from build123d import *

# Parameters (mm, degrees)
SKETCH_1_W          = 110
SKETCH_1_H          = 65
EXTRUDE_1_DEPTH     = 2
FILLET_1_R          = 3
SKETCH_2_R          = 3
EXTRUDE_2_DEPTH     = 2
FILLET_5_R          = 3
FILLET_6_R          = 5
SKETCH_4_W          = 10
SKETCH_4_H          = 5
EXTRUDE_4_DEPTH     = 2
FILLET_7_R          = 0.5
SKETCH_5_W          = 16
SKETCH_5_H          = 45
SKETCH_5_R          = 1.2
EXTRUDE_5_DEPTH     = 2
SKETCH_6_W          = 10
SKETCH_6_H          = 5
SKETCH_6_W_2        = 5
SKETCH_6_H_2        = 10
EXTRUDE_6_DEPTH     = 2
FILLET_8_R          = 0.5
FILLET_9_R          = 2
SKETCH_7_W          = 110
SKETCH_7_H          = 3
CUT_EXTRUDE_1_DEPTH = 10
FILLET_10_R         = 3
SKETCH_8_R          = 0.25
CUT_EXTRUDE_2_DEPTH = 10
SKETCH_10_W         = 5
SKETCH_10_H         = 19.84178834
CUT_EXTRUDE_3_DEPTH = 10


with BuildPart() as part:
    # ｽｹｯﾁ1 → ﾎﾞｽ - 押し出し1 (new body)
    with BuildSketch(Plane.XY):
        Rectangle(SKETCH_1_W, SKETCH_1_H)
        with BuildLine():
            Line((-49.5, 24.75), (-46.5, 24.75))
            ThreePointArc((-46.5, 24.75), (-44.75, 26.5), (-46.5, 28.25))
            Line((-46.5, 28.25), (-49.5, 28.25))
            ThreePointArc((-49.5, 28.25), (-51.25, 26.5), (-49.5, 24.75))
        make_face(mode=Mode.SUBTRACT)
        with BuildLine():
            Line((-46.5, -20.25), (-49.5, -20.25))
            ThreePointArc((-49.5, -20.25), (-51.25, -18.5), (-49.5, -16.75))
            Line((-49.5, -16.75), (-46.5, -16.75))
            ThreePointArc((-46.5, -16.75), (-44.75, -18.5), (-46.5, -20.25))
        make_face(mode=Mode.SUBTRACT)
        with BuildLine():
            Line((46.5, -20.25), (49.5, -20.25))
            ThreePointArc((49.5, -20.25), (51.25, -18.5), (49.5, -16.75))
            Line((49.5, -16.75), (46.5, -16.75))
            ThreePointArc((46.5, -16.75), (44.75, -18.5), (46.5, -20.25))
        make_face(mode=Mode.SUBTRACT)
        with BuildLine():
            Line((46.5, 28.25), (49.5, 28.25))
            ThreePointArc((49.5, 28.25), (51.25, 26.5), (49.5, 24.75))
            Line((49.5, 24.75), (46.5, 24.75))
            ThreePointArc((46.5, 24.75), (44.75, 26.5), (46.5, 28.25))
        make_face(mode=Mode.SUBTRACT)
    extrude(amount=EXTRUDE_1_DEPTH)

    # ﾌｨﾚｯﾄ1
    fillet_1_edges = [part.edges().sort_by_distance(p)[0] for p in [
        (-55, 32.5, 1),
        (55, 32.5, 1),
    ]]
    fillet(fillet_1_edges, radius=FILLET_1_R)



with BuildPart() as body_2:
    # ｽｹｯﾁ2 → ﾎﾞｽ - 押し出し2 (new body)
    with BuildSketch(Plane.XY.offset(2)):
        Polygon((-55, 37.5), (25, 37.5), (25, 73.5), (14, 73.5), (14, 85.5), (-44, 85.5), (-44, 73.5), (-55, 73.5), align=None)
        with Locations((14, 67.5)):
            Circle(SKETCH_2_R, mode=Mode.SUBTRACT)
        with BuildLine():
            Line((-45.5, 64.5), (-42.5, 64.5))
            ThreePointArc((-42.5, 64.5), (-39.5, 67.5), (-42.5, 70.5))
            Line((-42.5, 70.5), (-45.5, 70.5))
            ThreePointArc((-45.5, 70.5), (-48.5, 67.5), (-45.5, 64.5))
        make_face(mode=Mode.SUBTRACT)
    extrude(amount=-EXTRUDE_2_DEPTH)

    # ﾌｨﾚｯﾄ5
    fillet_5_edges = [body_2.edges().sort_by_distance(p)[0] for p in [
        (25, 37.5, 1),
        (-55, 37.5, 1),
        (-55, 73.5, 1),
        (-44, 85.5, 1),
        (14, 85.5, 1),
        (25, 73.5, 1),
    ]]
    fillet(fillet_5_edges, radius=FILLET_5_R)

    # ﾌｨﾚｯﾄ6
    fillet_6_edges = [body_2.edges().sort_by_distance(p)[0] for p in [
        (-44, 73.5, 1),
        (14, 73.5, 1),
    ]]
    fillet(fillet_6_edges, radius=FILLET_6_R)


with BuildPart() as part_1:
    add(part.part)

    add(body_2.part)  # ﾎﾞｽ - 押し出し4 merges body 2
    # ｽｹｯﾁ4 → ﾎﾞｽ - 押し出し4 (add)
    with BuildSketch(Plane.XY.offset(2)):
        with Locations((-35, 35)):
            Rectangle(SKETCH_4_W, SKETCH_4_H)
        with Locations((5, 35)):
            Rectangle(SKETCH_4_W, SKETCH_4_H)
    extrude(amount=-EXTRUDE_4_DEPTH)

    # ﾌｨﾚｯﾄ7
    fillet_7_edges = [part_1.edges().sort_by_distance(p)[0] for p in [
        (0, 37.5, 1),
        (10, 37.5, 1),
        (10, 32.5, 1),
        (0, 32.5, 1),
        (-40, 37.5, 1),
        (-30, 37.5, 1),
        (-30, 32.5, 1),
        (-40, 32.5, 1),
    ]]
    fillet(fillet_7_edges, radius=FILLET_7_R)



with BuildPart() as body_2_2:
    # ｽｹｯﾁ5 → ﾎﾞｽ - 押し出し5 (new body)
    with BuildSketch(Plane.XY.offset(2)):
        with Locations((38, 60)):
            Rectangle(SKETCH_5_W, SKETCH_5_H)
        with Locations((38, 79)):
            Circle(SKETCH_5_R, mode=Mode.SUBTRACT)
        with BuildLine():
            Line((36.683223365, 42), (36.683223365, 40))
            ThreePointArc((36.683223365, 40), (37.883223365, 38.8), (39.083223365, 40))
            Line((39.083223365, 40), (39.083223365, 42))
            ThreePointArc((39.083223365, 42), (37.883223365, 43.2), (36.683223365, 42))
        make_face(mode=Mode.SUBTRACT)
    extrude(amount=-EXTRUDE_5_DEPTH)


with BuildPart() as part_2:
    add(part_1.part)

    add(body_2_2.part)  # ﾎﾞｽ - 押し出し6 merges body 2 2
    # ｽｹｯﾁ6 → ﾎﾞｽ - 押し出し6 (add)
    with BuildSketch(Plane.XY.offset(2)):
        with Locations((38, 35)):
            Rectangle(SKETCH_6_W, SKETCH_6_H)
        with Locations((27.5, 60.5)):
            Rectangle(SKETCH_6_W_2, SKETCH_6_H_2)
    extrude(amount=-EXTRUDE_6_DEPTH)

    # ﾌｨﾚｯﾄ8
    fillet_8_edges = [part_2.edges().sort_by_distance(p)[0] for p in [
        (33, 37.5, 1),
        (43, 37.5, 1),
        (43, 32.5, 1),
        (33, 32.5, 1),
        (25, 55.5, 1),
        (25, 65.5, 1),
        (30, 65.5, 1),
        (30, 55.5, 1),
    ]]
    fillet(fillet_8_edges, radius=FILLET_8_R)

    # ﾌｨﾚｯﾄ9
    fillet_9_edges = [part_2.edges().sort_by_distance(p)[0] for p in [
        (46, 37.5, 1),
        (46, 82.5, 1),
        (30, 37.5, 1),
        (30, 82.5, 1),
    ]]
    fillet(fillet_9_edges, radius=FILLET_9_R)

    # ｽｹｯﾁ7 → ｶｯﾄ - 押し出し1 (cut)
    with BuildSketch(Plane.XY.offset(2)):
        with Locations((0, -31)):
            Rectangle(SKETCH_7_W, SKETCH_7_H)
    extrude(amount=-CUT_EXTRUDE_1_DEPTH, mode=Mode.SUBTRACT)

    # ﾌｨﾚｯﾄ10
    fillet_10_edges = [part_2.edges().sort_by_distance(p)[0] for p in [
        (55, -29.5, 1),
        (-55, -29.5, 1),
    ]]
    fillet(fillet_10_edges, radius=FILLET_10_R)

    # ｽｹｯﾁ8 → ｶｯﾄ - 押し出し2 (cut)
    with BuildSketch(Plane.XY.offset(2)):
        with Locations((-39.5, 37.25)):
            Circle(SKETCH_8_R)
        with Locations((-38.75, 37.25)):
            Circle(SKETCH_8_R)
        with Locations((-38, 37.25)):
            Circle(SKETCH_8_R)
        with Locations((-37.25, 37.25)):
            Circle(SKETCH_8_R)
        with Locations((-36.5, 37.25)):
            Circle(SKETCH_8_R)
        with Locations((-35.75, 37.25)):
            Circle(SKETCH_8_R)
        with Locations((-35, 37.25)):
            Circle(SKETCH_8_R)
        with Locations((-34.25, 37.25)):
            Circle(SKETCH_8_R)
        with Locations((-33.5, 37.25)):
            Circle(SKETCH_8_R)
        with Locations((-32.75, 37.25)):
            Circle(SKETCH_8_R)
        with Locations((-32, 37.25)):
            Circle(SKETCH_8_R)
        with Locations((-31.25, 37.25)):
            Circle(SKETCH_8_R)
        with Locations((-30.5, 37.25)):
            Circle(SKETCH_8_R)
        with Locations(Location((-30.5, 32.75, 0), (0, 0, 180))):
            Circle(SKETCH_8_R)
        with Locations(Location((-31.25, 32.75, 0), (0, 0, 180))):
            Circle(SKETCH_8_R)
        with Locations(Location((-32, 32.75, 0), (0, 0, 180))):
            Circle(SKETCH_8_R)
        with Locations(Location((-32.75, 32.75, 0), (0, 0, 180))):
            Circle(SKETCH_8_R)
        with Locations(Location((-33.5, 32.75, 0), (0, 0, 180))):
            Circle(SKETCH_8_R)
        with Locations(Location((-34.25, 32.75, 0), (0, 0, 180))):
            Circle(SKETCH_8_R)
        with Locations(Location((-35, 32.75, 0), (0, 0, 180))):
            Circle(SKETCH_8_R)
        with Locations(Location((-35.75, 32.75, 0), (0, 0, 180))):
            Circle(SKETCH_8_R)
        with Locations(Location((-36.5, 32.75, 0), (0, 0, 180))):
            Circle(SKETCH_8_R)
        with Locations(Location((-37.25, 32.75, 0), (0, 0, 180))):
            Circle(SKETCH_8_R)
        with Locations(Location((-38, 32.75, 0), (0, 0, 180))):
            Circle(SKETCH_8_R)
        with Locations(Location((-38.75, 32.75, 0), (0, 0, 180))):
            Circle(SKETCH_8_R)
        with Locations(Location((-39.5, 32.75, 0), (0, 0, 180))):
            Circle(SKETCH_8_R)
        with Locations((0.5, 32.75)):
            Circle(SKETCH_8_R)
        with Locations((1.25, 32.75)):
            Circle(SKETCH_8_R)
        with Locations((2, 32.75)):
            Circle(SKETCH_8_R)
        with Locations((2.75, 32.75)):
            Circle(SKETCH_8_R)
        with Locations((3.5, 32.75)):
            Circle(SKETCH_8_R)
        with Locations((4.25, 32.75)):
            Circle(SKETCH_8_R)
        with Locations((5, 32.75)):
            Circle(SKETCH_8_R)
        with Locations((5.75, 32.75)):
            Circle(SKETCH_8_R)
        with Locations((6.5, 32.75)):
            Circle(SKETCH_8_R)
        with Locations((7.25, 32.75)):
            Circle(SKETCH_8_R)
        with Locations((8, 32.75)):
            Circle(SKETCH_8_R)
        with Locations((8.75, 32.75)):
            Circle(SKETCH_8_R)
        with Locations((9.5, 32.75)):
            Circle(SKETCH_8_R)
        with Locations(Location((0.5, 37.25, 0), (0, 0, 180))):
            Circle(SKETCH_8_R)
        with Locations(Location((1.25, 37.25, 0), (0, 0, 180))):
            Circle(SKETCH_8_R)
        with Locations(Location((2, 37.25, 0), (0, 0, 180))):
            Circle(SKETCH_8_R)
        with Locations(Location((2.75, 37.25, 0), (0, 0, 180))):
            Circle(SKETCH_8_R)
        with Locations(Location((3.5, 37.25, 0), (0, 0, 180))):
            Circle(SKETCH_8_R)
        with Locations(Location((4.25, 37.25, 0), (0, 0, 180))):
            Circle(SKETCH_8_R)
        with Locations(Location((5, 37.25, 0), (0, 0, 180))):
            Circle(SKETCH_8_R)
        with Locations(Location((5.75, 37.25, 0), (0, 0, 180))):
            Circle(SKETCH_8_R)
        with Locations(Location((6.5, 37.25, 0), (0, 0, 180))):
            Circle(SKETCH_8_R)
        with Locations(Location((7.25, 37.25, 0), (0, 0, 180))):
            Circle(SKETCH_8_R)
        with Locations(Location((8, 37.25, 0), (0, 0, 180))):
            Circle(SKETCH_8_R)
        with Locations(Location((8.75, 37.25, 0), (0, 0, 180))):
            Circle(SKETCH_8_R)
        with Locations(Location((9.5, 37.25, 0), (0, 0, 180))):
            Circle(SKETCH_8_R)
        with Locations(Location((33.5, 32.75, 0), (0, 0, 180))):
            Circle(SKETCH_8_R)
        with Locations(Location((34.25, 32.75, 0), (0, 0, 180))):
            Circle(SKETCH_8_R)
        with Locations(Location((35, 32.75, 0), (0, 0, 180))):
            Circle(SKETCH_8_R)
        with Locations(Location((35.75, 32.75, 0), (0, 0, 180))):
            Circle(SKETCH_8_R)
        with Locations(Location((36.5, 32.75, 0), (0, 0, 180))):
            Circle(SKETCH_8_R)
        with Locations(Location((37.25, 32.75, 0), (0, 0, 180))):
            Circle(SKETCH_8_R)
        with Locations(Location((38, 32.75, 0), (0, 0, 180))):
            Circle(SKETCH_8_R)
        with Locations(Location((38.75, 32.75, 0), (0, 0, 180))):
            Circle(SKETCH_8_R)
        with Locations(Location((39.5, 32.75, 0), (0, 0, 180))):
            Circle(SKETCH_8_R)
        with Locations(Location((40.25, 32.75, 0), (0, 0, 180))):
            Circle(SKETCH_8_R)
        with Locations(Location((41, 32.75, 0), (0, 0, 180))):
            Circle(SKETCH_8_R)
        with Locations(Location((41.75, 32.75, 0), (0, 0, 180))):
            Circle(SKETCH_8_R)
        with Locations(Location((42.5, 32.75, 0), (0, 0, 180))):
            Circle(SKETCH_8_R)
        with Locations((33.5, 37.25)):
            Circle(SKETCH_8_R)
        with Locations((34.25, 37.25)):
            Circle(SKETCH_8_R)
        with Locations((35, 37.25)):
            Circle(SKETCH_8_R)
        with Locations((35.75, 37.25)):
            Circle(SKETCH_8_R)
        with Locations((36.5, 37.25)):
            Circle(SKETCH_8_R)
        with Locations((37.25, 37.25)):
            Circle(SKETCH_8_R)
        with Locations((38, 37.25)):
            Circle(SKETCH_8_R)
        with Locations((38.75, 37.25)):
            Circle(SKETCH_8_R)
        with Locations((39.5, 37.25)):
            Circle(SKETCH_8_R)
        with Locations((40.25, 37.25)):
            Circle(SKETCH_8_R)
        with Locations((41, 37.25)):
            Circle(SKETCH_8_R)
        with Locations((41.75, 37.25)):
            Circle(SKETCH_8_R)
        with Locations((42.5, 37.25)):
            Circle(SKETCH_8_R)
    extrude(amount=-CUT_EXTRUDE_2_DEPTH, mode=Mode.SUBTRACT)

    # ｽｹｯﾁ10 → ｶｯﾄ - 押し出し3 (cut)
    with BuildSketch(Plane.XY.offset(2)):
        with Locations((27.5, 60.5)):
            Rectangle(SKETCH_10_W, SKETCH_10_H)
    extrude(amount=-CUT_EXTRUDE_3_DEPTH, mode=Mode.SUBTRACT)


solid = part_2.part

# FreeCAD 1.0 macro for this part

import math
import FreeCAD as App
import Part
import Sketcher
Q = App.Units.Quantity


def edges_at(feature, points):
    """Names of the edges that pass closest to the given points."""
    edges = feature.Shape.Edges
    near = lambda p: min(range(len(edges)), key=lambda i: edges[i].distToShape(Part.Vertex(*p))[0])
    return sorted({f"Edge{near(p) + 1}" for p in points})


def add_polygon(sketch, points):
    """Adds a closed chain of lines whose ends are joined by coincident constraints."""
    first, n = sketch.GeometryCount, len(points)
    for a, b in zip(points, points[1:] + points[:1]):
        sketch.addGeometry(Part.LineSegment(App.Vector(*a, 0), App.Vector(*b, 0)), False)
    for i in range(n):
        sketch.addConstraint(Sketcher.Constraint("Coincident", first + i, 2, first + (i + 1) % n, 1))

doc = App.newDocument("Part")
params = doc.addObject("Spreadsheet::Sheet", "Params")
for row, (alias, value) in enumerate([
    ("sketch1_width", "110 mm"),
    ("sketch1_width2", "3 mm"),
    ("sketch1_height", "65 mm"),
    ("sketch1_radius", "1.75 mm"),
    ("pad1_length", "2 mm"),
    ("fillet_radius", "3 mm"),
    ("sketch2_diameter", "6 mm"),
    ("sketch2_width", "80 mm"),
    ("sketch2_width2", "11 mm"),
    ("sketch2_width3", "3 mm"),
    ("sketch2_height", "36 mm"),
    ("pad2_length", "2 mm"),
    ("fillet2_radius", "3 mm"),
    ("fillet3_radius", "5 mm"),
    ("sketch3_width", "10 mm"),
    ("sketch3_height", "5 mm"),
    ("pad3_length", "2 mm"),
    ("fillet4_radius", "0.5 mm"),
    ("sketch4_diameter", "2.4 mm"),
    ("sketch4_width", "16 mm"),
    ("sketch4_height", "45 mm"),
    ("sketch4_height2", "2 mm"),
    ("pad4_length", "2 mm"),
    ("sketch5_width", "10 mm"),
    ("sketch5_width2", "5 mm"),
    ("pad5_length", "2 mm"),
    ("fillet5_radius", "0.5 mm"),
    ("fillet6_radius", "2 mm"),
    ("sketch6_width", "110 mm"),
    ("sketch6_height", "3 mm"),
    ("pocket1_length", "10 mm"),
    ("fillet7_radius", "3 mm"),
    ("sketch7_diameter", "0.5 mm"),
    ("pocket2_length", "10 mm"),
    ("sketch8_width", "5 mm"),
    ("pocket3_length", "10 mm"),
], start=1):
    params.set(f"A{row}", alias)
    params.set(f"B{row}", "=" + value)
    params.setAlias(f"B{row}", alias)

body = doc.addObject("PartDesign::Body", "Body")

# Sketch on XY plane
sketch1 = body.newObject("Sketcher::SketchObject", "Sketch")
sketch1.AttachmentSupport = (doc.getObject("XY_Plane"), [""])
sketch1.MapMode = "FlatFace"
add_polygon(sketch1, [(-55, 32.5), (-55, -32.5), (55, -32.5), (55, 32.5)])  # lines 0-3
sketch1.addGeometry(Part.ArcOfCircle(Part.Circle(App.Vector(-46.5, -18.5, 0), App.Vector(0, 0, 1), 1.75), math.radians(-90), math.radians(90)), False)  # 4
sketch1.addGeometry(Part.LineSegment(App.Vector(-46.5, -20.25, 0), App.Vector(-49.5, -20.25, 0)), False)  # 5
sketch1.addGeometry(Part.ArcOfCircle(Part.Circle(App.Vector(-49.5, -18.5, 0), App.Vector(0, 0, 1), 1.75), math.radians(90), math.radians(270)), False)  # 6
sketch1.addGeometry(Part.LineSegment(App.Vector(-49.5, -16.75, 0), App.Vector(-46.5, -16.75, 0)), False)  # 7
sketch1.addGeometry(Part.LineSegment(App.Vector(49.5, -20.25, 0), App.Vector(46.5, -20.25, 0)), False)  # 8
sketch1.addGeometry(Part.ArcOfCircle(Part.Circle(App.Vector(46.5, -18.5, 0), App.Vector(0, 0, 1), 1.75), math.radians(90), math.radians(270)), False)  # 9
sketch1.addGeometry(Part.LineSegment(App.Vector(46.5, -16.75, 0), App.Vector(49.5, -16.75, 0)), False)  # 10
sketch1.addGeometry(Part.ArcOfCircle(Part.Circle(App.Vector(49.5, -18.5, 0), App.Vector(0, 0, 1), 1.75), math.radians(-90), math.radians(90)), False)  # 11
sketch1.addGeometry(Part.LineSegment(App.Vector(-46.5, 24.75, 0), App.Vector(-49.5, 24.75, 0)), False)  # 12
sketch1.addGeometry(Part.ArcOfCircle(Part.Circle(App.Vector(-49.5, 26.5, 0), App.Vector(0, 0, 1), 1.75), math.radians(90), math.radians(270)), False)  # 13
sketch1.addGeometry(Part.LineSegment(App.Vector(-49.5, 28.25, 0), App.Vector(-46.5, 28.25, 0)), False)  # 14
sketch1.addGeometry(Part.ArcOfCircle(Part.Circle(App.Vector(-46.5, 26.5, 0), App.Vector(0, 0, 1), 1.75), math.radians(-90), math.radians(90)), False)  # 15
sketch1.addGeometry(Part.ArcOfCircle(Part.Circle(App.Vector(46.5, 26.5, 0), App.Vector(0, 0, 1), 1.75), math.radians(90), math.radians(270)), False)  # 16
sketch1.addGeometry(Part.LineSegment(App.Vector(46.5, 28.25, 0), App.Vector(49.5, 28.25, 0)), False)  # 17
sketch1.addGeometry(Part.ArcOfCircle(Part.Circle(App.Vector(49.5, 26.5, 0), App.Vector(0, 0, 1), 1.75), math.radians(-90), math.radians(90)), False)  # 18
sketch1.addGeometry(Part.LineSegment(App.Vector(49.5, 24.75, 0), App.Vector(46.5, 24.75, 0)), False)  # 19
sketch1.addConstraint([
    Sketcher.Constraint("Tangent", 4, 1, 5, 1),
    Sketcher.Constraint("Tangent", 5, 2, 6, 2),
    Sketcher.Constraint("Tangent", 6, 1, 7, 1),
    Sketcher.Constraint("Tangent", 7, 2, 4, 2),
    Sketcher.Constraint("Tangent", 8, 2, 9, 2),
    Sketcher.Constraint("Tangent", 9, 1, 10, 1),
    Sketcher.Constraint("Tangent", 10, 2, 11, 2),
    Sketcher.Constraint("Tangent", 11, 1, 8, 1),
    Sketcher.Constraint("Tangent", 12, 2, 13, 2),
    Sketcher.Constraint("Tangent", 13, 1, 14, 1),
    Sketcher.Constraint("Tangent", 14, 2, 15, 2),
    Sketcher.Constraint("Tangent", 15, 1, 12, 1),
    Sketcher.Constraint("Tangent", 16, 1, 17, 1),
    Sketcher.Constraint("Tangent", 17, 2, 18, 2),
    Sketcher.Constraint("Tangent", 18, 1, 19, 1),
    Sketcher.Constraint("Tangent", 19, 2, 16, 2),
    Sketcher.Constraint("Vertical", 0),
    Sketcher.Constraint("Horizontal", 1),
    Sketcher.Constraint("Vertical", 2),
    Sketcher.Constraint("Horizontal", 3),
    Sketcher.Constraint("Horizontal", 5),
    Sketcher.Constraint("Horizontal", 7),
    Sketcher.Constraint("Horizontal", 8),
    Sketcher.Constraint("Horizontal", 10),
    Sketcher.Constraint("Horizontal", 12),
    Sketcher.Constraint("Horizontal", 14),
    Sketcher.Constraint("Horizontal", 17),
    Sketcher.Constraint("Horizontal", 19),
    Sketcher.Constraint("Equal", 6, 9),
    Sketcher.Constraint("Equal", 11, 13),
    Sketcher.Constraint("Equal", 15, 16),
    Sketcher.Constraint("Symmetric", 0, 2, 2, 2, -1, 1),
    Sketcher.Constraint("Symmetric", 4, 3, 9, 3, -2),
    Sketcher.Constraint("Symmetric", 15, 3, 16, 3, -2),
    Sketcher.Constraint("Vertical", 6, 3, 13, 3),
    Sketcher.Constraint("Vertical", 4, 3, 15, 3),
    Sketcher.Constraint("Vertical", 11, 3, 18, 3),
    Sketcher.Constraint("Equal", 7, 8),
    Sketcher.Constraint("DistanceX", 1, 1, 1, 2, Q("110 mm")),
    Sketcher.Constraint("DistanceX", 5, 2, 5, 1, Q("3 mm")),
    Sketcher.Constraint("DistanceY", 0, 2, 0, 1, Q("65 mm")),
    Sketcher.Constraint("Radius", 4, Q("1.75 mm")),
    Sketcher.Constraint("DistanceX", 4, 3, 9, 3, Q("93 mm")),
    Sketcher.Constraint("DistanceY", 6, 3, 13, 3, Q("45 mm")),
    Sketcher.Constraint("DistanceY", 0, 2, 6, 3, Q("14 mm")),
])
sketch1.setExpression("Constraints[42]", "Params.sketch1_width")
sketch1.setExpression("Constraints[43]", "Params.sketch1_width2")
sketch1.setExpression("Constraints[44]", "Params.sketch1_height")
sketch1.setExpression("Constraints[45]", "Params.sketch1_radius")
pad1 = body.newObject("PartDesign::Pad", "Pad")
pad1.Profile = sketch1
pad1.setExpression("Length", "Params.pad1_length")
doc.recompute()

fillet = body.newObject("PartDesign::Fillet", "Fillet")
fillet.Base = (pad1, edges_at(pad1, [(-55, 32.5, 1), (55, 32.5, 1)]))
fillet.setExpression("Radius", "Params.fillet_radius")
body2 = doc.addObject("PartDesign::Body", "Body001")

# Sketch on XY plane
sketch2 = body2.newObject("Sketcher::SketchObject", "Sketch001")
sketch2.AttachmentSupport = (doc.getObject("XY_Plane001"), [""])
sketch2.MapMode = "FlatFace"
sketch2.AttachmentOffset = App.Placement(App.Vector(0, 0, 2), App.Rotation())
add_polygon(sketch2, [(-55, 37.5), (25, 37.5), (25, 73.5), (14, 73.5), (14, 85.5), (-44, 85.5), (-44, 73.5), (-55, 73.5)])  # lines 0-7
sketch2.addGeometry(Part.LineSegment(App.Vector(-42.5, 64.5, 0), App.Vector(-45.5, 64.5, 0)), False)  # 8
sketch2.addGeometry(Part.ArcOfCircle(Part.Circle(App.Vector(-45.5, 67.5, 0), App.Vector(0, 0, 1), 3), math.radians(90), math.radians(270)), False)  # 9
sketch2.addGeometry(Part.LineSegment(App.Vector(-45.5, 70.5, 0), App.Vector(-42.5, 70.5, 0)), False)  # 10
sketch2.addGeometry(Part.ArcOfCircle(Part.Circle(App.Vector(-42.5, 67.5, 0), App.Vector(0, 0, 1), 3), math.radians(-90), math.radians(90)), False)  # 11
sketch2.addGeometry(Part.Circle(App.Vector(14, 67.5, 0), App.Vector(0, 0, 1), 3), False)  # 12
sketch2.addConstraint([
    Sketcher.Constraint("Tangent", 8, 2, 9, 2),
    Sketcher.Constraint("Tangent", 9, 1, 10, 1),
    Sketcher.Constraint("Tangent", 10, 2, 11, 2),
    Sketcher.Constraint("Tangent", 11, 1, 8, 1),
    Sketcher.Constraint("Horizontal", 0),
    Sketcher.Constraint("Vertical", 1),
    Sketcher.Constraint("Horizontal", 2),
    Sketcher.Constraint("Vertical", 3),
    Sketcher.Constraint("Horizontal", 4),
    Sketcher.Constraint("Vertical", 5),
    Sketcher.Constraint("Horizontal", 6),
    Sketcher.Constraint("Vertical", 7),
    Sketcher.Constraint("Horizontal", 8),
    Sketcher.Constraint("Horizontal", 10),
    Sketcher.Constraint("Equal", 11, 12),
    Sketcher.Constraint("Horizontal", 11, 3, 12, 3),
    Sketcher.Constraint("Horizontal", 2, 2, 5, 2),
    Sketcher.Constraint("Vertical", 12, 3, 2, 2),
    Sketcher.Constraint("Equal", 2, 6),
    Sketcher.Constraint("Diameter", 12, Q("6 mm")),
    Sketcher.Constraint("DistanceX", 0, 1, 0, 2, Q("80 mm")),
    Sketcher.Constraint("DistanceX", 2, 2, 2, 1, Q("11 mm")),
    Sketcher.Constraint("DistanceX", 8, 2, 8, 1, Q("3 mm")),
    Sketcher.Constraint("DistanceY", 1, 1, 1, 2, Q("36 mm")),
    Sketcher.Constraint("DistanceY", 3, 1, 3, 2, Q("12 mm")),
    Sketcher.Constraint("DistanceX", -1, 1, 12, 3, Q("14 mm")),
    Sketcher.Constraint("DistanceY", 0, 2, 12, 3, Q("30 mm")),
    Sketcher.Constraint("DistanceX", 9, 3, -1, 1, Q("45.5 mm")),
    Sketcher.Constraint("DistanceY", -1, 1, 9, 3, Q("67.5 mm")),
])
sketch2.setExpression("Constraints[27]", "Params.sketch2_diameter")
sketch2.setExpression("Constraints[28]", "Params.sketch2_width")
sketch2.setExpression("Constraints[29]", "Params.sketch2_width2")
sketch2.setExpression("Constraints[30]", "Params.sketch2_width3")
sketch2.setExpression("Constraints[31]", "Params.sketch2_height")
pad2 = body2.newObject("PartDesign::Pad", "Pad001")
pad2.Profile = sketch2
pad2.setExpression("Length", "Params.pad2_length")
pad2.Reversed = True
doc.recompute()

fillet2 = body2.newObject("PartDesign::Fillet", "Fillet001")
fillet2.Base = (pad2, edges_at(pad2, [
    (25, 37.5, 1),
    (-55, 37.5, 1),
    (-55, 73.5, 1),
    (-44, 85.5, 1),
    (14, 85.5, 1),
    (25, 73.5, 1),
]))
fillet2.setExpression("Radius", "Params.fillet2_radius")
doc.recompute()

fillet3 = body2.newObject("PartDesign::Fillet", "Fillet002")
fillet3.Base = (fillet2, edges_at(fillet2, [(-44, 73.5, 1), (14, 73.5, 1)]))
fillet3.setExpression("Radius", "Params.fillet3_radius")
body.AllowCompound = True
doc.recompute()

boolean = body.newObject("PartDesign::Boolean", "Boolean")
boolean.Type = "Fuse"
boolean.addObjects([body2])

# Sketch on XY plane
sketch3 = body.newObject("Sketcher::SketchObject", "Sketch002")
sketch3.AttachmentSupport = (doc.getObject("XY_Plane"), [""])
sketch3.MapMode = "FlatFace"
sketch3.AttachmentOffset = App.Placement(App.Vector(0, 0, 2), App.Rotation())
add_polygon(sketch3, [(-40, 37.5), (-40, 32.5), (-30, 32.5), (-30, 37.5)])  # lines 0-3
add_polygon(sketch3, [(0, 37.5), (0, 32.5), (10, 32.5), (10, 37.5)])  # lines 4-7
sketch3.addConstraint([
    Sketcher.Constraint("Vertical", 0),
    Sketcher.Constraint("Horizontal", 1),
    Sketcher.Constraint("Vertical", 2),
    Sketcher.Constraint("Horizontal", 3),
    Sketcher.Constraint("Vertical", 4),
    Sketcher.Constraint("Horizontal", 5),
    Sketcher.Constraint("Vertical", 6),
    Sketcher.Constraint("Horizontal", 7),
    Sketcher.Constraint("PointOnObject", 4, 2, -2),
    Sketcher.Constraint("Horizontal", 1, 2, 4, 2),
    Sketcher.Constraint("Horizontal", 3, 2, 6, 2),
    Sketcher.Constraint("Equal", 3, 5),
    Sketcher.Constraint("DistanceX", 1, 1, 1, 2, Q("10 mm")),
    Sketcher.Constraint("DistanceY", 0, 2, 0, 1, Q("5 mm")),
    Sketcher.Constraint("DistanceX", 0, 2, -1, 1, Q("40 mm")),
    Sketcher.Constraint("DistanceY", -1, 1, 0, 2, Q("32.5 mm")),
])
sketch3.setExpression("Constraints[20]", "Params.sketch3_width")
sketch3.setExpression("Constraints[21]", "Params.sketch3_height")
pad3 = body.newObject("PartDesign::Pad", "Pad002")
pad3.Profile = sketch3
pad3.setExpression("Length", "Params.pad3_length")
pad3.Reversed = True
doc.recompute()

fillet4 = body.newObject("PartDesign::Fillet", "Fillet003")
fillet4.Base = (pad3, edges_at(pad3, [
    (0, 37.5, 1),
    (10, 37.5, 1),
    (10, 32.5, 1),
    (0, 32.5, 1),
    (-40, 37.5, 1),
    (-30, 37.5, 1),
    (-30, 32.5, 1),
    (-40, 32.5, 1),
]))
fillet4.setExpression("Radius", "Params.fillet4_radius")
body3 = doc.addObject("PartDesign::Body", "Body002")

# Sketch on XY plane
sketch4 = body3.newObject("Sketcher::SketchObject", "Sketch003")
sketch4.AttachmentSupport = (doc.getObject("XY_Plane002"), [""])
sketch4.MapMode = "FlatFace"
sketch4.AttachmentOffset = App.Placement(App.Vector(0, 0, 2), App.Rotation())
add_polygon(sketch4, [(30, 82.5), (30, 37.5), (46, 37.5), (46, 82.5)])  # lines 0-3
sketch4.addGeometry(Part.LineSegment(App.Vector(36.683223, 40, 0), App.Vector(36.683223, 42, 0)), False)  # 4
sketch4.addGeometry(Part.ArcOfCircle(Part.Circle(App.Vector(37.883223, 42, 0), App.Vector(0, 0, 1), 1.2), math.radians(0), math.radians(180)), False)  # 5
sketch4.addGeometry(Part.LineSegment(App.Vector(39.083223, 42, 0), App.Vector(39.083223, 40, 0)), False)  # 6
sketch4.addGeometry(Part.ArcOfCircle(Part.Circle(App.Vector(37.883223, 40, 0), App.Vector(0, 0, 1), 1.2), math.radians(180), math.radians(360)), False)  # 7
sketch4.addGeometry(Part.Circle(App.Vector(38, 79, 0), App.Vector(0, 0, 1), 1.2), False)  # 8
sketch4.addConstraint([
    Sketcher.Constraint("Tangent", 4, 2, 5, 2),
    Sketcher.Constraint("Tangent", 5, 1, 6, 1),
    Sketcher.Constraint("Tangent", 6, 2, 7, 2),
    Sketcher.Constraint("Tangent", 7, 1, 4, 1),
    Sketcher.Constraint("Vertical", 0),
    Sketcher.Constraint("Horizontal", 1),
    Sketcher.Constraint("Vertical", 2),
    Sketcher.Constraint("Horizontal", 3),
    Sketcher.Constraint("Vertical", 4),
    Sketcher.Constraint("Vertical", 6),
    Sketcher.Constraint("Equal", 7, 8),
    Sketcher.Constraint("Diameter", 8, Q("2.4 mm")),
    Sketcher.Constraint("DistanceX", 1, 1, 1, 2, Q("16 mm")),
    Sketcher.Constraint("DistanceY", 0, 2, 0, 1, Q("45 mm")),
    Sketcher.Constraint("DistanceY", 4, 1, 4, 2, Q("2 mm")),
    Sketcher.Constraint("DistanceY", -1, 1, 5, 3, Q("42 mm")),
    Sketcher.Constraint("DistanceX", -1, 1, 8, 3, Q("38 mm")),
    Sketcher.Constraint("DistanceY", -1, 1, 8, 3, Q("79 mm")),
    Sketcher.Constraint("DistanceX", -1, 1, 0, 2, Q("30 mm")),
    Sketcher.Constraint("DistanceY", -1, 1, 0, 2, Q("37.5 mm")),
    Sketcher.Constraint("DistanceX", -1, 1, 5, 3, Q("37.883223 mm")),
])
sketch4.setExpression("Constraints[15]", "Params.sketch4_diameter")
sketch4.setExpression("Constraints[16]", "Params.sketch4_width")
sketch4.setExpression("Constraints[17]", "Params.sketch4_height")
sketch4.setExpression("Constraints[18]", "Params.sketch4_height2")
pad4 = body3.newObject("PartDesign::Pad", "Pad003")
pad4.Profile = sketch4
pad4.setExpression("Length", "Params.pad4_length")
pad4.Reversed = True
body.AllowCompound = True
doc.recompute()

boolean2 = body.newObject("PartDesign::Boolean", "Boolean001")
boolean2.Type = "Fuse"
boolean2.addObjects([body3])

# Sketch on XY plane
sketch5 = body.newObject("Sketcher::SketchObject", "Sketch004")
sketch5.AttachmentSupport = (doc.getObject("XY_Plane"), [""])
sketch5.MapMode = "FlatFace"
sketch5.AttachmentOffset = App.Placement(App.Vector(0, 0, 2), App.Rotation())
add_polygon(sketch5, [(33, 37.5), (33, 32.5), (43, 32.5), (43, 37.5)])  # lines 0-3
add_polygon(sketch5, [(25, 65.5), (25, 55.5), (30, 55.5), (30, 65.5)])  # lines 4-7
sketch5.addConstraint([
    Sketcher.Constraint("Vertical", 0),
    Sketcher.Constraint("Horizontal", 1),
    Sketcher.Constraint("Vertical", 2),
    Sketcher.Constraint("Horizontal", 3),
    Sketcher.Constraint("Vertical", 4),
    Sketcher.Constraint("Horizontal", 5),
    Sketcher.Constraint("Vertical", 6),
    Sketcher.Constraint("Horizontal", 7),
    Sketcher.Constraint("Equal", 7, 0),
    Sketcher.Constraint("Equal", 3, 4),
    Sketcher.Constraint("DistanceX", 1, 1, 1, 2, Q("10 mm")),
    Sketcher.Constraint("DistanceX", 5, 1, 5, 2, Q("5 mm")),
    Sketcher.Constraint("DistanceX", -1, 1, 0, 2, Q("33 mm")),
    Sketcher.Constraint("DistanceX", -1, 1, 4, 2, Q("25 mm")),
    Sketcher.Constraint("DistanceY", 3, 2, 4, 2, Q("18 mm")),
    Sketcher.Constraint("DistanceY", -1, 1, 0, 2, Q("32.5 mm")),
])
sketch5.setExpression("Constraints[18]", "Params.sketch5_width")
sketch5.setExpression("Constraints[19]", "Params.sketch5_width2")
pad5 = body.newObject("PartDesign::Pad", "Pad004")
pad5.Profile = sketch5
pad5.setExpression("Length", "Params.pad5_length")
pad5.Reversed = True
doc.recompute()

fillet5 = body.newObject("PartDesign::Fillet", "Fillet004")
fillet5.Base = (pad5, edges_at(pad5, [
    (33, 37.5, 1),
    (43, 37.5, 1),
    (43, 32.5, 1),
    (33, 32.5, 1),
    (25, 55.5, 1),
    (25, 65.5, 1),
    (30, 65.5, 1),
    (30, 55.5, 1),
]))
fillet5.setExpression("Radius", "Params.fillet5_radius")
doc.recompute()

fillet6 = body.newObject("PartDesign::Fillet", "Fillet005")
fillet6.Base = (fillet5, edges_at(fillet5, [
    (46, 37.5, 1),
    (46, 82.5, 1),
    (30, 37.5, 1),
    (30, 82.5, 1),
]))
fillet6.setExpression("Radius", "Params.fillet6_radius")

# Sketch on XY plane
sketch6 = body.newObject("Sketcher::SketchObject", "Sketch005")
sketch6.AttachmentSupport = (doc.getObject("XY_Plane"), [""])
sketch6.MapMode = "FlatFace"
sketch6.AttachmentOffset = App.Placement(App.Vector(0, 0, 2), App.Rotation())
add_polygon(sketch6, [(-55, -29.5), (-55, -32.5), (55, -32.5), (55, -29.5)])  # lines 0-3
sketch6.addConstraint([
    Sketcher.Constraint("Vertical", 0),
    Sketcher.Constraint("Horizontal", 1),
    Sketcher.Constraint("Vertical", 2),
    Sketcher.Constraint("Horizontal", 3),
    Sketcher.Constraint("DistanceX", 1, 1, 1, 2, Q("110 mm")),
    Sketcher.Constraint("DistanceY", 0, 2, 0, 1, Q("3 mm")),
    Sketcher.Constraint("DistanceX", 0, 2, -1, 1, Q("55 mm")),
    Sketcher.Constraint("DistanceY", 0, 2, -1, 1, Q("32.5 mm")),
])
sketch6.setExpression("Constraints[8]", "Params.sketch6_width")
sketch6.setExpression("Constraints[9]", "Params.sketch6_height")
pocket1 = body.newObject("PartDesign::Pocket", "Pocket")
pocket1.Profile = sketch6
pocket1.setExpression("Length", "Params.pocket1_length")
doc.recompute()

fillet7 = body.newObject("PartDesign::Fillet", "Fillet006")
fillet7.Base = (pocket1, edges_at(pocket1, [(55, -29.5, 1), (-55, -29.5, 1)]))
fillet7.setExpression("Radius", "Params.fillet7_radius")

# Sketch on XY plane
sketch7 = body.newObject("Sketcher::SketchObject", "Sketch006")
sketch7.AttachmentSupport = (doc.getObject("XY_Plane"), [""])
sketch7.MapMode = "FlatFace"
sketch7.AttachmentOffset = App.Placement(App.Vector(0, 0, 2), App.Rotation())
sketch7.addGeometry([
    Part.Circle(App.Vector(-39.5, 37.25, 0), App.Vector(0, 0, 1), 0.25),  # 0
    Part.Circle(App.Vector(-38.75, 37.25, 0), App.Vector(0, 0, 1), 0.25),  # 1
    Part.Circle(App.Vector(-38, 37.25, 0), App.Vector(0, 0, 1), 0.25),  # 2
    Part.Circle(App.Vector(-37.25, 37.25, 0), App.Vector(0, 0, 1), 0.25),  # 3
    Part.Circle(App.Vector(-36.5, 37.25, 0), App.Vector(0, 0, 1), 0.25),  # 4
    Part.Circle(App.Vector(-35.75, 37.25, 0), App.Vector(0, 0, 1), 0.25),  # 5
    Part.Circle(App.Vector(-35, 37.25, 0), App.Vector(0, 0, 1), 0.25),  # 6
    Part.Circle(App.Vector(-34.25, 37.25, 0), App.Vector(0, 0, 1), 0.25),  # 7
    Part.Circle(App.Vector(-33.5, 37.25, 0), App.Vector(0, 0, 1), 0.25),  # 8
    Part.Circle(App.Vector(-32.75, 37.25, 0), App.Vector(0, 0, 1), 0.25),  # 9
    Part.Circle(App.Vector(-32, 37.25, 0), App.Vector(0, 0, 1), 0.25),  # 10
    Part.Circle(App.Vector(-31.25, 37.25, 0), App.Vector(0, 0, 1), 0.25),  # 11
    Part.Circle(App.Vector(-30.5, 37.25, 0), App.Vector(0, 0, 1), 0.25),  # 12
    Part.Circle(App.Vector(-30.5, 32.75, 0), App.Vector(0, 0, 1), 0.25),  # 13
    Part.Circle(App.Vector(-31.25, 32.75, 0), App.Vector(0, 0, 1), 0.25),  # 14
    Part.Circle(App.Vector(-32, 32.75, 0), App.Vector(0, 0, 1), 0.25),  # 15
    Part.Circle(App.Vector(-32.75, 32.75, 0), App.Vector(0, 0, 1), 0.25),  # 16
    Part.Circle(App.Vector(-33.5, 32.75, 0), App.Vector(0, 0, 1), 0.25),  # 17
    Part.Circle(App.Vector(-34.25, 32.75, 0), App.Vector(0, 0, 1), 0.25),  # 18
    Part.Circle(App.Vector(-35, 32.75, 0), App.Vector(0, 0, 1), 0.25),  # 19
    Part.Circle(App.Vector(-35.75, 32.75, 0), App.Vector(0, 0, 1), 0.25),  # 20
    Part.Circle(App.Vector(-36.5, 32.75, 0), App.Vector(0, 0, 1), 0.25),  # 21
    Part.Circle(App.Vector(-37.25, 32.75, 0), App.Vector(0, 0, 1), 0.25),  # 22
    Part.Circle(App.Vector(-38, 32.75, 0), App.Vector(0, 0, 1), 0.25),  # 23
    Part.Circle(App.Vector(-38.75, 32.75, 0), App.Vector(0, 0, 1), 0.25),  # 24
    Part.Circle(App.Vector(-39.5, 32.75, 0), App.Vector(0, 0, 1), 0.25),  # 25
    Part.Circle(App.Vector(0.5, 32.75, 0), App.Vector(0, 0, 1), 0.25),  # 26
    Part.Circle(App.Vector(1.25, 32.75, 0), App.Vector(0, 0, 1), 0.25),  # 27
    Part.Circle(App.Vector(2, 32.75, 0), App.Vector(0, 0, 1), 0.25),  # 28
    Part.Circle(App.Vector(2.75, 32.75, 0), App.Vector(0, 0, 1), 0.25),  # 29
    Part.Circle(App.Vector(3.5, 32.75, 0), App.Vector(0, 0, 1), 0.25),  # 30
    Part.Circle(App.Vector(4.25, 32.75, 0), App.Vector(0, 0, 1), 0.25),  # 31
    Part.Circle(App.Vector(5, 32.75, 0), App.Vector(0, 0, 1), 0.25),  # 32
    Part.Circle(App.Vector(5.75, 32.75, 0), App.Vector(0, 0, 1), 0.25),  # 33
    Part.Circle(App.Vector(6.5, 32.75, 0), App.Vector(0, 0, 1), 0.25),  # 34
    Part.Circle(App.Vector(7.25, 32.75, 0), App.Vector(0, 0, 1), 0.25),  # 35
    Part.Circle(App.Vector(8, 32.75, 0), App.Vector(0, 0, 1), 0.25),  # 36
    Part.Circle(App.Vector(8.75, 32.75, 0), App.Vector(0, 0, 1), 0.25),  # 37
    Part.Circle(App.Vector(9.5, 32.75, 0), App.Vector(0, 0, 1), 0.25),  # 38
    Part.Circle(App.Vector(0.5, 37.25, 0), App.Vector(0, 0, 1), 0.25),  # 39
    Part.Circle(App.Vector(1.25, 37.25, 0), App.Vector(0, 0, 1), 0.25),  # 40
    Part.Circle(App.Vector(2, 37.25, 0), App.Vector(0, 0, 1), 0.25),  # 41
    Part.Circle(App.Vector(2.75, 37.25, 0), App.Vector(0, 0, 1), 0.25),  # 42
    Part.Circle(App.Vector(3.5, 37.25, 0), App.Vector(0, 0, 1), 0.25),  # 43
    Part.Circle(App.Vector(4.25, 37.25, 0), App.Vector(0, 0, 1), 0.25),  # 44
    Part.Circle(App.Vector(5, 37.25, 0), App.Vector(0, 0, 1), 0.25),  # 45
    Part.Circle(App.Vector(5.75, 37.25, 0), App.Vector(0, 0, 1), 0.25),  # 46
    Part.Circle(App.Vector(6.5, 37.25, 0), App.Vector(0, 0, 1), 0.25),  # 47
    Part.Circle(App.Vector(7.25, 37.25, 0), App.Vector(0, 0, 1), 0.25),  # 48
    Part.Circle(App.Vector(8, 37.25, 0), App.Vector(0, 0, 1), 0.25),  # 49
    Part.Circle(App.Vector(8.75, 37.25, 0), App.Vector(0, 0, 1), 0.25),  # 50
    Part.Circle(App.Vector(9.5, 37.25, 0), App.Vector(0, 0, 1), 0.25),  # 51
    Part.Circle(App.Vector(33.5, 32.75, 0), App.Vector(0, 0, 1), 0.25),  # 52
    Part.Circle(App.Vector(34.25, 32.75, 0), App.Vector(0, 0, 1), 0.25),  # 53
    Part.Circle(App.Vector(35, 32.75, 0), App.Vector(0, 0, 1), 0.25),  # 54
    Part.Circle(App.Vector(35.75, 32.75, 0), App.Vector(0, 0, 1), 0.25),  # 55
    Part.Circle(App.Vector(36.5, 32.75, 0), App.Vector(0, 0, 1), 0.25),  # 56
    Part.Circle(App.Vector(37.25, 32.75, 0), App.Vector(0, 0, 1), 0.25),  # 57
    Part.Circle(App.Vector(38, 32.75, 0), App.Vector(0, 0, 1), 0.25),  # 58
    Part.Circle(App.Vector(38.75, 32.75, 0), App.Vector(0, 0, 1), 0.25),  # 59
    Part.Circle(App.Vector(39.5, 32.75, 0), App.Vector(0, 0, 1), 0.25),  # 60
    Part.Circle(App.Vector(40.25, 32.75, 0), App.Vector(0, 0, 1), 0.25),  # 61
    Part.Circle(App.Vector(41, 32.75, 0), App.Vector(0, 0, 1), 0.25),  # 62
    Part.Circle(App.Vector(41.75, 32.75, 0), App.Vector(0, 0, 1), 0.25),  # 63
    Part.Circle(App.Vector(42.5, 32.75, 0), App.Vector(0, 0, 1), 0.25),  # 64
    Part.Circle(App.Vector(33.5, 37.25, 0), App.Vector(0, 0, 1), 0.25),  # 65
    Part.Circle(App.Vector(34.25, 37.25, 0), App.Vector(0, 0, 1), 0.25),  # 66
    Part.Circle(App.Vector(35, 37.25, 0), App.Vector(0, 0, 1), 0.25),  # 67
    Part.Circle(App.Vector(35.75, 37.25, 0), App.Vector(0, 0, 1), 0.25),  # 68
    Part.Circle(App.Vector(36.5, 37.25, 0), App.Vector(0, 0, 1), 0.25),  # 69
    Part.Circle(App.Vector(37.25, 37.25, 0), App.Vector(0, 0, 1), 0.25),  # 70
    Part.Circle(App.Vector(38, 37.25, 0), App.Vector(0, 0, 1), 0.25),  # 71
    Part.Circle(App.Vector(38.75, 37.25, 0), App.Vector(0, 0, 1), 0.25),  # 72
    Part.Circle(App.Vector(39.5, 37.25, 0), App.Vector(0, 0, 1), 0.25),  # 73
    Part.Circle(App.Vector(40.25, 37.25, 0), App.Vector(0, 0, 1), 0.25),  # 74
    Part.Circle(App.Vector(41, 37.25, 0), App.Vector(0, 0, 1), 0.25),  # 75
    Part.Circle(App.Vector(41.75, 37.25, 0), App.Vector(0, 0, 1), 0.25),  # 76
    Part.Circle(App.Vector(42.5, 37.25, 0), App.Vector(0, 0, 1), 0.25),  # 77
], False)
sketch7.addConstraint([
    Sketcher.Constraint("Equal", 0, 1),
    Sketcher.Constraint("Equal", 1, 2),
    Sketcher.Constraint("Equal", 2, 3),
    Sketcher.Constraint("Equal", 3, 4),
    Sketcher.Constraint("Equal", 4, 5),
    Sketcher.Constraint("Equal", 5, 6),
    Sketcher.Constraint("Equal", 6, 7),
    Sketcher.Constraint("Equal", 7, 8),
    Sketcher.Constraint("Equal", 8, 9),
    Sketcher.Constraint("Equal", 9, 10),
    Sketcher.Constraint("Equal", 10, 11),
    Sketcher.Constraint("Equal", 11, 12),
    Sketcher.Constraint("Equal", 12, 13),
    Sketcher.Constraint("Equal", 13, 14),
    Sketcher.Constraint("Equal", 14, 15),
    Sketcher.Constraint("Equal", 15, 16),
    Sketcher.Constraint("Equal", 16, 17),
    Sketcher.Constraint("Equal", 17, 18),
    Sketcher.Constraint("Equal", 18, 19),
    Sketcher.Constraint("Equal", 19, 20),
    Sketcher.Constraint("Equal", 20, 21),
    Sketcher.Constraint("Equal", 21, 22),
    Sketcher.Constraint("Equal", 22, 23),
    Sketcher.Constraint("Equal", 23, 24),
    Sketcher.Constraint("Equal", 24, 25),
    Sketcher.Constraint("Equal", 25, 26),
    Sketcher.Constraint("Equal", 26, 27),
    Sketcher.Constraint("Equal", 27, 28),
    Sketcher.Constraint("Equal", 28, 29),
    Sketcher.Constraint("Equal", 29, 30),
    Sketcher.Constraint("Equal", 30, 31),
    Sketcher.Constraint("Equal", 31, 32),
    Sketcher.Constraint("Equal", 32, 33),
    Sketcher.Constraint("Equal", 33, 34),
    Sketcher.Constraint("Equal", 34, 35),
    Sketcher.Constraint("Equal", 35, 36),
    Sketcher.Constraint("Equal", 36, 37),
    Sketcher.Constraint("Equal", 37, 38),
    Sketcher.Constraint("Equal", 38, 39),
    Sketcher.Constraint("Equal", 39, 40),
    Sketcher.Constraint("Equal", 40, 41),
    Sketcher.Constraint("Equal", 41, 42),
    Sketcher.Constraint("Equal", 42, 43),
    Sketcher.Constraint("Equal", 43, 44),
    Sketcher.Constraint("Equal", 44, 45),
    Sketcher.Constraint("Equal", 45, 46),
    Sketcher.Constraint("Equal", 46, 47),
    Sketcher.Constraint("Equal", 47, 48),
    Sketcher.Constraint("Equal", 48, 49),
    Sketcher.Constraint("Equal", 49, 50),
    Sketcher.Constraint("Equal", 50, 51),
    Sketcher.Constraint("Equal", 51, 52),
    Sketcher.Constraint("Equal", 52, 53),
    Sketcher.Constraint("Equal", 53, 54),
    Sketcher.Constraint("Equal", 54, 55),
    Sketcher.Constraint("Equal", 55, 56),
    Sketcher.Constraint("Equal", 56, 57),
    Sketcher.Constraint("Equal", 57, 58),
    Sketcher.Constraint("Equal", 58, 59),
    Sketcher.Constraint("Equal", 59, 60),
    Sketcher.Constraint("Equal", 60, 61),
    Sketcher.Constraint("Equal", 61, 62),
    Sketcher.Constraint("Equal", 62, 63),
    Sketcher.Constraint("Equal", 63, 64),
    Sketcher.Constraint("Equal", 64, 65),
    Sketcher.Constraint("Equal", 65, 66),
    Sketcher.Constraint("Equal", 66, 67),
    Sketcher.Constraint("Equal", 67, 68),
    Sketcher.Constraint("Equal", 68, 69),
    Sketcher.Constraint("Equal", 69, 70),
    Sketcher.Constraint("Equal", 70, 71),
    Sketcher.Constraint("Equal", 71, 72),
    Sketcher.Constraint("Equal", 72, 73),
    Sketcher.Constraint("Equal", 73, 74),
    Sketcher.Constraint("Equal", 74, 75),
    Sketcher.Constraint("Equal", 75, 76),
    Sketcher.Constraint("Equal", 76, 77),
    Sketcher.Constraint("Symmetric", 17, 3, 52, 3, -2),
    Sketcher.Constraint("Symmetric", 18, 3, 53, 3, -2),
    Sketcher.Constraint("Symmetric", 19, 3, 54, 3, -2),
    Sketcher.Constraint("Symmetric", 20, 3, 55, 3, -2),
    Sketcher.Constraint("Symmetric", 21, 3, 56, 3, -2),
    Sketcher.Constraint("Symmetric", 22, 3, 57, 3, -2),
    Sketcher.Constraint("Symmetric", 23, 3, 58, 3, -2),
    Sketcher.Constraint("Symmetric", 24, 3, 59, 3, -2),
    Sketcher.Constraint("Symmetric", 25, 3, 60, 3, -2),
    Sketcher.Constraint("Symmetric", 8, 3, 65, 3, -2),
    Sketcher.Constraint("Symmetric", 7, 3, 66, 3, -2),
    Sketcher.Constraint("Symmetric", 6, 3, 67, 3, -2),
    Sketcher.Constraint("Symmetric", 5, 3, 68, 3, -2),
    Sketcher.Constraint("Symmetric", 4, 3, 69, 3, -2),
    Sketcher.Constraint("Symmetric", 3, 3, 70, 3, -2),
    Sketcher.Constraint("Symmetric", 2, 3, 71, 3, -2),
    Sketcher.Constraint("Symmetric", 1, 3, 72, 3, -2),
    Sketcher.Constraint("Symmetric", 0, 3, 73, 3, -2),
    Sketcher.Constraint("Horizontal", 0, 3, 1, 3),
    Sketcher.Constraint("Horizontal", 1, 3, 2, 3),
    Sketcher.Constraint("Horizontal", 2, 3, 3, 3),
    Sketcher.Constraint("Horizontal", 3, 3, 4, 3),
    Sketcher.Constraint("Horizontal", 4, 3, 5, 3),
    Sketcher.Constraint("Horizontal", 5, 3, 6, 3),
    Sketcher.Constraint("Horizontal", 6, 3, 7, 3),
    Sketcher.Constraint("Horizontal", 7, 3, 8, 3),
    Sketcher.Constraint("Horizontal", 8, 3, 9, 3),
    Sketcher.Constraint("Horizontal", 9, 3, 10, 3),
    Sketcher.Constraint("Horizontal", 10, 3, 11, 3),
    Sketcher.Constraint("Horizontal", 11, 3, 12, 3),
    Sketcher.Constraint("Horizontal", 13, 3, 14, 3),
    Sketcher.Constraint("Horizontal", 14, 3, 15, 3),
    Sketcher.Constraint("Horizontal", 15, 3, 16, 3),
    Sketcher.Constraint("Horizontal", 16, 3, 17, 3),
    Sketcher.Constraint("Horizontal", 17, 3, 18, 3),
    Sketcher.Constraint("Horizontal", 18, 3, 19, 3),
    Sketcher.Constraint("Horizontal", 19, 3, 20, 3),
    Sketcher.Constraint("Horizontal", 20, 3, 21, 3),
    Sketcher.Constraint("Horizontal", 21, 3, 22, 3),
    Sketcher.Constraint("Horizontal", 22, 3, 23, 3),
    Sketcher.Constraint("Horizontal", 23, 3, 24, 3),
    Sketcher.Constraint("Horizontal", 24, 3, 25, 3),
    Sketcher.Constraint("Horizontal", 25, 3, 26, 3),
    Sketcher.Constraint("Horizontal", 26, 3, 27, 3),
    Sketcher.Constraint("Horizontal", 27, 3, 28, 3),
    Sketcher.Constraint("Horizontal", 28, 3, 29, 3),
    Sketcher.Constraint("Horizontal", 29, 3, 30, 3),
    Sketcher.Constraint("Horizontal", 30, 3, 31, 3),
    Sketcher.Constraint("Horizontal", 31, 3, 32, 3),
    Sketcher.Constraint("Horizontal", 32, 3, 33, 3),
    Sketcher.Constraint("Horizontal", 33, 3, 34, 3),
    Sketcher.Constraint("Horizontal", 34, 3, 35, 3),
    Sketcher.Constraint("Horizontal", 35, 3, 36, 3),
    Sketcher.Constraint("Horizontal", 36, 3, 37, 3),
    Sketcher.Constraint("Horizontal", 37, 3, 38, 3),
    Sketcher.Constraint("Horizontal", 12, 3, 39, 3),
    Sketcher.Constraint("Horizontal", 39, 3, 40, 3),
    Sketcher.Constraint("Horizontal", 40, 3, 41, 3),
    Sketcher.Constraint("Horizontal", 41, 3, 42, 3),
    Sketcher.Constraint("Horizontal", 42, 3, 43, 3),
    Sketcher.Constraint("Horizontal", 43, 3, 44, 3),
    Sketcher.Constraint("Horizontal", 44, 3, 45, 3),
    Sketcher.Constraint("Horizontal", 45, 3, 46, 3),
    Sketcher.Constraint("Horizontal", 46, 3, 47, 3),
    Sketcher.Constraint("Horizontal", 47, 3, 48, 3),
    Sketcher.Constraint("Horizontal", 48, 3, 49, 3),
    Sketcher.Constraint("Horizontal", 49, 3, 50, 3),
    Sketcher.Constraint("Horizontal", 50, 3, 51, 3),
    Sketcher.Constraint("Horizontal", 60, 3, 61, 3),
    Sketcher.Constraint("Horizontal", 61, 3, 62, 3),
    Sketcher.Constraint("Horizontal", 62, 3, 63, 3),
    Sketcher.Constraint("Horizontal", 63, 3, 64, 3),
    Sketcher.Constraint("Horizontal", 73, 3, 74, 3),
    Sketcher.Constraint("Horizontal", 74, 3, 75, 3),
    Sketcher.Constraint("Horizontal", 75, 3, 76, 3),
    Sketcher.Constraint("Horizontal", 76, 3, 77, 3),
    Sketcher.Constraint("Vertical", 12, 3, 13, 3),
    Sketcher.Constraint("Vertical", 11, 3, 14, 3),
    Sketcher.Constraint("Vertical", 10, 3, 15, 3),
    Sketcher.Constraint("Vertical", 9, 3, 16, 3),
    Sketcher.Constraint("Vertical", 8, 3, 17, 3),
    Sketcher.Constraint("Vertical", 7, 3, 18, 3),
    Sketcher.Constraint("Vertical", 6, 3, 19, 3),
    Sketcher.Constraint("Vertical", 5, 3, 20, 3),
    Sketcher.Constraint("Vertical", 4, 3, 21, 3),
    Sketcher.Constraint("Vertical", 3, 3, 22, 3),
    Sketcher.Constraint("Vertical", 2, 3, 23, 3),
    Sketcher.Constraint("Vertical", 1, 3, 24, 3),
    Sketcher.Constraint("Vertical", 0, 3, 25, 3),
    Sketcher.Constraint("Vertical", 26, 3, 39, 3),
    Sketcher.Constraint("Vertical", 27, 3, 40, 3),
    Sketcher.Constraint("Vertical", 28, 3, 41, 3),
    Sketcher.Constraint("Vertical", 29, 3, 42, 3),
    Sketcher.Constraint("Vertical", 30, 3, 43, 3),
    Sketcher.Constraint("Vertical", 31, 3, 44, 3),
    Sketcher.Constraint("Vertical", 32, 3, 45, 3),
    Sketcher.Constraint("Vertical", 33, 3, 46, 3),
    Sketcher.Constraint("Vertical", 34, 3, 47, 3),
    Sketcher.Constraint("Vertical", 35, 3, 48, 3),
    Sketcher.Constraint("Vertical", 36, 3, 49, 3),
    Sketcher.Constraint("Vertical", 37, 3, 50, 3),
    Sketcher.Constraint("Vertical", 38, 3, 51, 3),
    Sketcher.Constraint("Vertical", 61, 3, 74, 3),
    Sketcher.Constraint("Vertical", 62, 3, 75, 3),
    Sketcher.Constraint("Vertical", 63, 3, 76, 3),
    Sketcher.Constraint("Vertical", 64, 3, 77, 3),
    Sketcher.Constraint("Diameter", 0, Q("0.5 mm")),
    Sketcher.Constraint("DistanceX", 2, 3, -1, 1, Q("38 mm")),
    Sketcher.Constraint("DistanceX", 6, 3, -1, 1, Q("35 mm")),
    Sketcher.Constraint("DistanceX", 10, 3, -1, 1, Q("32 mm")),
    Sketcher.Constraint("DistanceX", -1, 1, 28, 3, Q("2 mm")),
    Sketcher.Constraint("DistanceX", -1, 1, 32, 3, Q("5 mm")),
    Sketcher.Constraint("DistanceX", -1, 1, 36, 3, Q("8 mm")),
    Sketcher.Constraint("DistanceX", -1, 1, 62, 3, Q("41 mm")),
    Sketcher.Constraint("DistanceX", 0, 3, -1, 1, Q("39.5 mm")),
    Sketcher.Constraint("DistanceX", 4, 3, -1, 1, Q("36.5 mm")),
    Sketcher.Constraint("DistanceX", 8, 3, -1, 1, Q("33.5 mm")),
    Sketcher.Constraint("DistanceX", 12, 3, -1, 1, Q("30.5 mm")),
    Sketcher.Constraint("DistanceX", -1, 1, 26, 3, Q("0.5 mm")),
    Sketcher.Constraint("DistanceX", -1, 1, 30, 3, Q("3.5 mm")),
    Sketcher.Constraint("DistanceX", -1, 1, 34, 3, Q("6.5 mm")),
    Sketcher.Constraint("DistanceX", -1, 1, 38, 3, Q("9.5 mm")),
    Sketcher.Constraint("DistanceX", -1, 1, 64, 3, Q("42.5 mm")),
    Sketcher.Constraint("DistanceY", -1, 1, 0, 3, Q("37.25 mm")),
    Sketcher.Constraint("DistanceX", 1, 3, -1, 1, Q("38.75 mm")),
    Sketcher.Constraint("DistanceX", 3, 3, -1, 1, Q("37.25 mm")),
    Sketcher.Constraint("DistanceX", 5, 3, -1, 1, Q("35.75 mm")),
    Sketcher.Constraint("DistanceX", 7, 3, -1, 1, Q("34.25 mm")),
    Sketcher.Constraint("DistanceX", 9, 3, -1, 1, Q("32.75 mm")),
    Sketcher.Constraint("DistanceX", 11, 3, -1, 1, Q("31.25 mm")),
    Sketcher.Constraint("DistanceY", -1, 1, 13, 3, Q("32.75 mm")),
    Sketcher.Constraint("DistanceX", -1, 1, 27, 3, Q("1.25 mm")),
    Sketcher.Constraint("DistanceX", -1, 1, 29, 3, Q("2.75 mm")),
    Sketcher.Constraint("DistanceX", -1, 1, 31, 3, Q("4.25 mm")),
    Sketcher.Constraint("DistanceX", -1, 1, 33, 3, Q("5.75 mm")),
    Sketcher.Constraint("DistanceX", -1, 1, 35, 3, Q("7.25 mm")),
    Sketcher.Constraint("DistanceX", -1, 1, 37, 3, Q("8.75 mm")),
    Sketcher.Constraint("DistanceX", -1, 1, 61, 3, Q("40.25 mm")),
    Sketcher.Constraint("DistanceX", -1, 1, 63, 3, Q("41.75 mm")),
])
sketch7.setExpression("Constraints[183]", "Params.sketch7_diameter")
pocket2 = body.newObject("PartDesign::Pocket", "Pocket001")
pocket2.Profile = sketch7
pocket2.setExpression("Length", "Params.pocket2_length")

# Sketch on XY plane
sketch8 = body.newObject("Sketcher::SketchObject", "Sketch007")
sketch8.AttachmentSupport = (doc.getObject("XY_Plane"), [""])
sketch8.MapMode = "FlatFace"
sketch8.AttachmentOffset = App.Placement(App.Vector(0, 0, 2), App.Rotation())
add_polygon(sketch8, [(25, 70.420894), (25, 50.579106), (30, 50.579106), (30, 70.420894)])  # lines 0-3
sketch8.addConstraint([
    Sketcher.Constraint("Vertical", 0),
    Sketcher.Constraint("Horizontal", 1),
    Sketcher.Constraint("Vertical", 2),
    Sketcher.Constraint("Horizontal", 3),
    Sketcher.Constraint("DistanceX", 1, 1, 1, 2, Q("5 mm")),
    Sketcher.Constraint("DistanceX", -1, 1, 0, 2, Q("25 mm")),
    Sketcher.Constraint("DistanceY", 0, 2, 0, 1, Q("19.841788 mm")),
    Sketcher.Constraint("DistanceY", -1, 1, 0, 2, Q("50.579106 mm")),
])
sketch8.setExpression("Constraints[8]", "Params.sketch8_width")
pocket3 = body.newObject("PartDesign::Pocket", "Pocket002")
pocket3.Profile = sketch8
pocket3.setExpression("Length", "Params.pocket3_length")

doc.recompute()
